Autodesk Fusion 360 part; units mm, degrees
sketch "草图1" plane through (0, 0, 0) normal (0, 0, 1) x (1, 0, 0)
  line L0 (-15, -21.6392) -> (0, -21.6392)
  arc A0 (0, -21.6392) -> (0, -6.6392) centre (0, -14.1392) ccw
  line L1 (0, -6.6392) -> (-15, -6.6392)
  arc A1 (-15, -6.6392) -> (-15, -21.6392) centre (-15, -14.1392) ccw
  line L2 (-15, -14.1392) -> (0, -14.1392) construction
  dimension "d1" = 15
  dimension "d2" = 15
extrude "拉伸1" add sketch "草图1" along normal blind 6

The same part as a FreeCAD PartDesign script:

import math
import FreeCAD as App
import Part
import Sketcher

doc = App.newDocument("Part")
body = doc.addObject("PartDesign::Body", "Body")

# Sketch on XY plane
sketch1 = body.newObject("Sketcher::SketchObject", "Sketch")
sketch1.AttachmentSupport = (doc.getObject("XY_Plane"), [""])
sketch1.MapMode = "FlatFace"
sketch1.addGeometry([
    Part.ArcOfCircle(Part.Circle(App.Vector(-15, -14.1392, 0), App.Vector(0, 0, 1), 7.5), math.radians(90), math.radians(270)),
    Part.LineSegment(App.Vector(-15, -21.6392, 0), App.Vector(0, -21.6392, 0)),
    Part.ArcOfCircle(Part.Circle(App.Vector(0, -14.1392, 0), App.Vector(0, 0, 1), 7.5), math.radians(-90), math.radians(90)),
    Part.LineSegment(App.Vector(0, -6.6392, 0), App.Vector(-15, -6.6392, 0)),
], False)
sketch1.addConstraint([
    Sketcher.Constraint("Tangent", 0, 2, 1, 1),
    Sketcher.Constraint("Tangent", 1, 2, 2, 1),
    Sketcher.Constraint("Tangent", 2, 2, 3, 1),
    Sketcher.Constraint("Tangent", 3, 2, 0, 1),
    Sketcher.Constraint("Horizontal", 1),
    Sketcher.Constraint("Horizontal", 3),
    Sketcher.Constraint("PointOnObject", 2, 3, -2),
    Sketcher.Constraint("Radius", 0, 7.5),
    Sketcher.Constraint("DistanceX", 1, 1, 1, 2, 15.0),
    Sketcher.Constraint("DistanceY", 0, 3, -1, 1, 14.1392),
])
pad1 = body.newObject("PartDesign::Pad", "Pad")
pad1.Profile = sketch1
pad1.Length = 6

doc.recompute()
